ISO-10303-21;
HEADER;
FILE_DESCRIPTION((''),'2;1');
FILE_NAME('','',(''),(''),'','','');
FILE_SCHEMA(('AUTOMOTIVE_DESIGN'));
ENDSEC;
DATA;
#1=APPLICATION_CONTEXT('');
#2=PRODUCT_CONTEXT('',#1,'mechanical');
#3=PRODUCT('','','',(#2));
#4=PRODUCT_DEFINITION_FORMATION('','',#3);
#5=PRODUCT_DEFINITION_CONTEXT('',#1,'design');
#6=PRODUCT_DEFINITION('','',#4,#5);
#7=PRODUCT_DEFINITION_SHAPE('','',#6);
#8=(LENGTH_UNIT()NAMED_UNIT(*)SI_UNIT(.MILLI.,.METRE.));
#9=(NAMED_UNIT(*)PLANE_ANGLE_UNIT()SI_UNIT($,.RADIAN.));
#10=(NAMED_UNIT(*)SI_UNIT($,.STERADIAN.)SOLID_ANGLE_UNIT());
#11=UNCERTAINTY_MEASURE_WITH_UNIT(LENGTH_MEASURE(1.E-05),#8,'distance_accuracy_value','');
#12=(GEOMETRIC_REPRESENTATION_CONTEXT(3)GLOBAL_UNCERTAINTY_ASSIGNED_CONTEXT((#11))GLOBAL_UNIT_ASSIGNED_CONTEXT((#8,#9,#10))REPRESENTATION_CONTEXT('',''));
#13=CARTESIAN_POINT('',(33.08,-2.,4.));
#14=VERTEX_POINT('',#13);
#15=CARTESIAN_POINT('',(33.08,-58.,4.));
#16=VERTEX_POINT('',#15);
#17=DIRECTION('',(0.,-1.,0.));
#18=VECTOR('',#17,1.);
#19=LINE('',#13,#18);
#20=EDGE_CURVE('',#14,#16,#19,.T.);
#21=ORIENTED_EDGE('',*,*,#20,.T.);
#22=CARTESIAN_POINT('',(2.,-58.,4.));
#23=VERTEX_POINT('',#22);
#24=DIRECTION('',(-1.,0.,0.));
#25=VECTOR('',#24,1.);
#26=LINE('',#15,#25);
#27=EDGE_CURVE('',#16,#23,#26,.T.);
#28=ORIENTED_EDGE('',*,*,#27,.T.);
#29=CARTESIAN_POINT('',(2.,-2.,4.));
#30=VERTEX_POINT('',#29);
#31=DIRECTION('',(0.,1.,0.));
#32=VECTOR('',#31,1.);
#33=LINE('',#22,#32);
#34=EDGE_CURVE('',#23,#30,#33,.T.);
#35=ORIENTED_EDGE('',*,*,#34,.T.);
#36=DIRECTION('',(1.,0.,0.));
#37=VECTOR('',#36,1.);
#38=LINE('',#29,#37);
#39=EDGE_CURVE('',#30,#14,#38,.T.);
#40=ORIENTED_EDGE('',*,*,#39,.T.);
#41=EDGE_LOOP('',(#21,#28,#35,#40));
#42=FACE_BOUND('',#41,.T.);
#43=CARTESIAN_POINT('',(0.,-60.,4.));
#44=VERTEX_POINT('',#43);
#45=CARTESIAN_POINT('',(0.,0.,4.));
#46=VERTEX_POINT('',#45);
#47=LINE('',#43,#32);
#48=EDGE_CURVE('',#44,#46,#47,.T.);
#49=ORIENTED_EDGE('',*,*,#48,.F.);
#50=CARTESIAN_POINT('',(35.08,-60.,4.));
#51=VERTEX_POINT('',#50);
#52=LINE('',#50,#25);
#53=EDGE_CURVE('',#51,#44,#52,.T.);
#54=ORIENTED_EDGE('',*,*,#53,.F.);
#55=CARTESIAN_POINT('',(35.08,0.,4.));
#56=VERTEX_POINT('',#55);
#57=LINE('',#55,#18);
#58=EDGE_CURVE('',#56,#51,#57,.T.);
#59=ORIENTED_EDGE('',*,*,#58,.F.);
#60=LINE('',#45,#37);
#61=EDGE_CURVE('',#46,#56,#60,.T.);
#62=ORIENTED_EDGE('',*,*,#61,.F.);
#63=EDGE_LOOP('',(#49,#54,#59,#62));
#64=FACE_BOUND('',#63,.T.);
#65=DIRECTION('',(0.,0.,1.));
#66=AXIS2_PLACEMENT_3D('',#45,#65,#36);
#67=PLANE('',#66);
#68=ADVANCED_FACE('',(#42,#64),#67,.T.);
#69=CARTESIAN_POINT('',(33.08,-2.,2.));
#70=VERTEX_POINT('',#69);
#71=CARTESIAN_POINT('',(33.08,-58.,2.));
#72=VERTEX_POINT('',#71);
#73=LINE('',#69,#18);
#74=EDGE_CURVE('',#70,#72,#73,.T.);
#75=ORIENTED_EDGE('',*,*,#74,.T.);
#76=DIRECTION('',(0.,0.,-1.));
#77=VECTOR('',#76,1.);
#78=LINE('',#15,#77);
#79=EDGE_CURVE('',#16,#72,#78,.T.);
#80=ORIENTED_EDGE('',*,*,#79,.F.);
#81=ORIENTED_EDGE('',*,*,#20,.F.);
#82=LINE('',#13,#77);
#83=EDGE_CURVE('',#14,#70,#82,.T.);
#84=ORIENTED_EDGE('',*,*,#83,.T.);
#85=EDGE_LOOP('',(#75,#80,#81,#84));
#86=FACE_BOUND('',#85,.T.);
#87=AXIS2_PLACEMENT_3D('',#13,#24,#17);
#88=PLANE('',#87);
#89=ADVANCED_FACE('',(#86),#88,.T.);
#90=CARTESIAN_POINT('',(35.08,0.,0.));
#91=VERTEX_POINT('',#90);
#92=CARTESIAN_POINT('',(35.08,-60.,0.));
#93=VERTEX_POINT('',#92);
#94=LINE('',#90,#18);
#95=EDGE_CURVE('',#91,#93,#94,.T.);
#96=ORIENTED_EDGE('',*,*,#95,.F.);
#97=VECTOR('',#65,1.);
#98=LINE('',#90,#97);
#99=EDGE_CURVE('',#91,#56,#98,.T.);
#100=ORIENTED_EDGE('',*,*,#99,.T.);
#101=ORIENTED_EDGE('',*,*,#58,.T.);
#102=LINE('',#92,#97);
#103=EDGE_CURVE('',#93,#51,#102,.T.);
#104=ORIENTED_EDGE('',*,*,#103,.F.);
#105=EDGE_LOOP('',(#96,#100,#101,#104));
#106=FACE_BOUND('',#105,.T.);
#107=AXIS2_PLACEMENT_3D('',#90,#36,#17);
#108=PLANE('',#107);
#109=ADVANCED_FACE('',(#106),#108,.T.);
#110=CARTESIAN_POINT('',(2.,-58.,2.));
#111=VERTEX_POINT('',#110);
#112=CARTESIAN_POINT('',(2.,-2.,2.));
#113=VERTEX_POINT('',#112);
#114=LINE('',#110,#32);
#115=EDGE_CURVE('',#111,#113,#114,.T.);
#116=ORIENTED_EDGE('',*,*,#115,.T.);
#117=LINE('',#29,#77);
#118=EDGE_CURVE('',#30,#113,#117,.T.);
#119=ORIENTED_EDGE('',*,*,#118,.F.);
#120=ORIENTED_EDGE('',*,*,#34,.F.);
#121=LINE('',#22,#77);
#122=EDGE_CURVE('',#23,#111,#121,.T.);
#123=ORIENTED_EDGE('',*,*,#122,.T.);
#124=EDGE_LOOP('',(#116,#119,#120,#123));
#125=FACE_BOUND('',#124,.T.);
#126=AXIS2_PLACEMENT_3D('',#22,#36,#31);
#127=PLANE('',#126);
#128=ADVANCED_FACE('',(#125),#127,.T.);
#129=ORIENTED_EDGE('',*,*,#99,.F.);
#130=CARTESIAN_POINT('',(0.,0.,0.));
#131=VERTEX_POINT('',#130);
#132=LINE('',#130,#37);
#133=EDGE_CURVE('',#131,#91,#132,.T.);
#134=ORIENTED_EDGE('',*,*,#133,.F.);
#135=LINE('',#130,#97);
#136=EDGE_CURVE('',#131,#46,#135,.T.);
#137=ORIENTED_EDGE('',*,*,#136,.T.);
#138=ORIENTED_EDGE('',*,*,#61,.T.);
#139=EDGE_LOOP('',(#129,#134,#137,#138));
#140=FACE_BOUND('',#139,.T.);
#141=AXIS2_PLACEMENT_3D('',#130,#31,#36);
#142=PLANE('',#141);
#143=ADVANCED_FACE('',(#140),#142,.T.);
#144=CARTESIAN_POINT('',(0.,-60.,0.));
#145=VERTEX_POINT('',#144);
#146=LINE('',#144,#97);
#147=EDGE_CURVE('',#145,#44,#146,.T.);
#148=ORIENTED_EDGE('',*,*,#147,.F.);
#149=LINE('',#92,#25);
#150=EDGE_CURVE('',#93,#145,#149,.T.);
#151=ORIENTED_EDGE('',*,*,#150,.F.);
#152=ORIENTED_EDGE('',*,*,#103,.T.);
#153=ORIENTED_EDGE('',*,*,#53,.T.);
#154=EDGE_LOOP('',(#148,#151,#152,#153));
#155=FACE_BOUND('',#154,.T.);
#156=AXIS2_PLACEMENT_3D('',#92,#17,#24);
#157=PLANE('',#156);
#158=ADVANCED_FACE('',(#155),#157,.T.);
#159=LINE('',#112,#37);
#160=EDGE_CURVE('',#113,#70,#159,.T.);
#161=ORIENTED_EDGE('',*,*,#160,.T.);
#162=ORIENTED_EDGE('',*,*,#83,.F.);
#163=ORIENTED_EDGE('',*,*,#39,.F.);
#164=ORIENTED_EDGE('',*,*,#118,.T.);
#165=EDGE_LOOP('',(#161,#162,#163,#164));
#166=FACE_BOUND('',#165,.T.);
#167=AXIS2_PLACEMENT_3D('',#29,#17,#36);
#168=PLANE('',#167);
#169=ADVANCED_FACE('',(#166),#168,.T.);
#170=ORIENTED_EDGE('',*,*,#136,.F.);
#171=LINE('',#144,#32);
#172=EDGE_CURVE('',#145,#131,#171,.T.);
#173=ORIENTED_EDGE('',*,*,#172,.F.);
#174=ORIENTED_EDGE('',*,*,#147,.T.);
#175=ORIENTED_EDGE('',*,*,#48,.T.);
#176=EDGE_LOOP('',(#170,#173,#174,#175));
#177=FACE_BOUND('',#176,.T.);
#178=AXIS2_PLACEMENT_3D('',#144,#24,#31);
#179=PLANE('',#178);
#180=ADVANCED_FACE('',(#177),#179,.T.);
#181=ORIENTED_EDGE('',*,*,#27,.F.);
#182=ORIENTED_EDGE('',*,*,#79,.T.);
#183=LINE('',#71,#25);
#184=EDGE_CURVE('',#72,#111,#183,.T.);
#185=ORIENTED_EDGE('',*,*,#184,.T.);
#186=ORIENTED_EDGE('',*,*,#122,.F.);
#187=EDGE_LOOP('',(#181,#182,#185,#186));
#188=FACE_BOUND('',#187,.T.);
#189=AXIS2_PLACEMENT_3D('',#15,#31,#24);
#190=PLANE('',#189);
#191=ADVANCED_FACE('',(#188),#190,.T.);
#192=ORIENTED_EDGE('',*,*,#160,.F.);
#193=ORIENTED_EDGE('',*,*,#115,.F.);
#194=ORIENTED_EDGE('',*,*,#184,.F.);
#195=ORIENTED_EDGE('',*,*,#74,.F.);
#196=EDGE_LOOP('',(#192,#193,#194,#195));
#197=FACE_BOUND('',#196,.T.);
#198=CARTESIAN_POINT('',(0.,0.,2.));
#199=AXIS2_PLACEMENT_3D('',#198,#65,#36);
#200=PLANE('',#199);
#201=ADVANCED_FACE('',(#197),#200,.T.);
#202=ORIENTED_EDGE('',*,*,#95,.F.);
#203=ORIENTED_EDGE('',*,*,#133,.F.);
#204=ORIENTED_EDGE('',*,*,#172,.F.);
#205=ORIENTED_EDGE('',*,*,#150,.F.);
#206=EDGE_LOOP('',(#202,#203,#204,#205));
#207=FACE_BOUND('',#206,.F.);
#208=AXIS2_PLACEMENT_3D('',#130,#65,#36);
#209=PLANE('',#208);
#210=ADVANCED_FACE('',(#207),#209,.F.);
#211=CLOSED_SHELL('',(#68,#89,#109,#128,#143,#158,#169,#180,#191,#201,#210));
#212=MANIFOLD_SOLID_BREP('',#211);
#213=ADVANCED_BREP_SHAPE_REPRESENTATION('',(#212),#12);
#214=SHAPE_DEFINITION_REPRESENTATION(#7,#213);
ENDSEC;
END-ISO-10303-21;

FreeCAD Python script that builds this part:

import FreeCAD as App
import Part
import Sketcher

V = App.Vector
Q = App.Units.Quantity


def add_polygon(sketch, points):
    """Adds a closed chain of lines whose ends are joined by coincident constraints."""
    first, n = sketch.GeometryCount, len(points)
    for a, b in zip(points, points[1:] + points[:1]):
        sketch.addGeometry(Part.LineSegment(App.Vector(*a, 0), App.Vector(*b, 0)), False)
    for i in range(n):
        sketch.addConstraint(Sketcher.Constraint("Coincident", first + i, 2, first + (i + 1) % n, 1))

doc = App.newDocument("Part")
body = doc.addObject("PartDesign::Body", "Body")

sketch1 = doc.addObject("Sketcher::SketchObject", "Sketch")
body.addObject(sketch1)
sketch1.AttachmentSupport = (doc.XY_Plane, [""])
sketch1.MapMode = "FlatFace"
add_polygon(sketch1, [(35.08, 0), (0, 0), (0, -60), (35.08, -60)])
sketch1.addConstraint([
    Sketcher.Constraint("Horizontal", 0),
    Sketcher.Constraint("Vertical", 1),
    Sketcher.Constraint("Horizontal", 2),
    Sketcher.Constraint("Vertical", 3),
    Sketcher.Constraint("Coincident", 0, 2, -1, 1),
    Sketcher.Constraint("DistanceY", 1, 2, 1, 1, Q("60 mm")),
    Sketcher.Constraint("DistanceX", 0, 2, 0, 1, Q("35.08 mm")),
])
pad1 = doc.addObject("PartDesign::Pad", "Pad")
body.addObject(pad1)
pad1.Profile = sketch1
pad1.Length = 4

sketch2 = doc.addObject("Sketcher::SketchObject", "Sketch001")
body.addObject(sketch2)
sketch2.AttachmentSupport = (doc.XY_Plane, [""])
sketch2.MapMode = "FlatFace"
sketch2.AttachmentOffset = App.Placement(V(0, 0, 4), App.Rotation())
add_polygon(sketch2, [(33.08, -2), (2, -2), (2, -58), (33.08, -58)])
sketch2.addConstraint([
    Sketcher.Constraint("Horizontal", 0),
    Sketcher.Constraint("Vertical", 1),
    Sketcher.Constraint("Horizontal", 2),
    Sketcher.Constraint("Vertical", 3),
    Sketcher.Constraint("DistanceX", -1, 1, 0, 2, Q("2 mm")),
    Sketcher.Constraint("DistanceY", 0, 2, -1, 1, Q("2 mm")),
    Sketcher.Constraint("DistanceY", 1, 2, 1, 1, Q("56 mm")),
    Sketcher.Constraint("DistanceX", 0, 2, 0, 1, Q("31.08 mm")),
])
pocket1 = doc.addObject("PartDesign::Pocket", "Pocket")
body.addObject(pocket1)
pocket1.Profile = sketch2
pocket1.Length = 2

doc.recompute()
